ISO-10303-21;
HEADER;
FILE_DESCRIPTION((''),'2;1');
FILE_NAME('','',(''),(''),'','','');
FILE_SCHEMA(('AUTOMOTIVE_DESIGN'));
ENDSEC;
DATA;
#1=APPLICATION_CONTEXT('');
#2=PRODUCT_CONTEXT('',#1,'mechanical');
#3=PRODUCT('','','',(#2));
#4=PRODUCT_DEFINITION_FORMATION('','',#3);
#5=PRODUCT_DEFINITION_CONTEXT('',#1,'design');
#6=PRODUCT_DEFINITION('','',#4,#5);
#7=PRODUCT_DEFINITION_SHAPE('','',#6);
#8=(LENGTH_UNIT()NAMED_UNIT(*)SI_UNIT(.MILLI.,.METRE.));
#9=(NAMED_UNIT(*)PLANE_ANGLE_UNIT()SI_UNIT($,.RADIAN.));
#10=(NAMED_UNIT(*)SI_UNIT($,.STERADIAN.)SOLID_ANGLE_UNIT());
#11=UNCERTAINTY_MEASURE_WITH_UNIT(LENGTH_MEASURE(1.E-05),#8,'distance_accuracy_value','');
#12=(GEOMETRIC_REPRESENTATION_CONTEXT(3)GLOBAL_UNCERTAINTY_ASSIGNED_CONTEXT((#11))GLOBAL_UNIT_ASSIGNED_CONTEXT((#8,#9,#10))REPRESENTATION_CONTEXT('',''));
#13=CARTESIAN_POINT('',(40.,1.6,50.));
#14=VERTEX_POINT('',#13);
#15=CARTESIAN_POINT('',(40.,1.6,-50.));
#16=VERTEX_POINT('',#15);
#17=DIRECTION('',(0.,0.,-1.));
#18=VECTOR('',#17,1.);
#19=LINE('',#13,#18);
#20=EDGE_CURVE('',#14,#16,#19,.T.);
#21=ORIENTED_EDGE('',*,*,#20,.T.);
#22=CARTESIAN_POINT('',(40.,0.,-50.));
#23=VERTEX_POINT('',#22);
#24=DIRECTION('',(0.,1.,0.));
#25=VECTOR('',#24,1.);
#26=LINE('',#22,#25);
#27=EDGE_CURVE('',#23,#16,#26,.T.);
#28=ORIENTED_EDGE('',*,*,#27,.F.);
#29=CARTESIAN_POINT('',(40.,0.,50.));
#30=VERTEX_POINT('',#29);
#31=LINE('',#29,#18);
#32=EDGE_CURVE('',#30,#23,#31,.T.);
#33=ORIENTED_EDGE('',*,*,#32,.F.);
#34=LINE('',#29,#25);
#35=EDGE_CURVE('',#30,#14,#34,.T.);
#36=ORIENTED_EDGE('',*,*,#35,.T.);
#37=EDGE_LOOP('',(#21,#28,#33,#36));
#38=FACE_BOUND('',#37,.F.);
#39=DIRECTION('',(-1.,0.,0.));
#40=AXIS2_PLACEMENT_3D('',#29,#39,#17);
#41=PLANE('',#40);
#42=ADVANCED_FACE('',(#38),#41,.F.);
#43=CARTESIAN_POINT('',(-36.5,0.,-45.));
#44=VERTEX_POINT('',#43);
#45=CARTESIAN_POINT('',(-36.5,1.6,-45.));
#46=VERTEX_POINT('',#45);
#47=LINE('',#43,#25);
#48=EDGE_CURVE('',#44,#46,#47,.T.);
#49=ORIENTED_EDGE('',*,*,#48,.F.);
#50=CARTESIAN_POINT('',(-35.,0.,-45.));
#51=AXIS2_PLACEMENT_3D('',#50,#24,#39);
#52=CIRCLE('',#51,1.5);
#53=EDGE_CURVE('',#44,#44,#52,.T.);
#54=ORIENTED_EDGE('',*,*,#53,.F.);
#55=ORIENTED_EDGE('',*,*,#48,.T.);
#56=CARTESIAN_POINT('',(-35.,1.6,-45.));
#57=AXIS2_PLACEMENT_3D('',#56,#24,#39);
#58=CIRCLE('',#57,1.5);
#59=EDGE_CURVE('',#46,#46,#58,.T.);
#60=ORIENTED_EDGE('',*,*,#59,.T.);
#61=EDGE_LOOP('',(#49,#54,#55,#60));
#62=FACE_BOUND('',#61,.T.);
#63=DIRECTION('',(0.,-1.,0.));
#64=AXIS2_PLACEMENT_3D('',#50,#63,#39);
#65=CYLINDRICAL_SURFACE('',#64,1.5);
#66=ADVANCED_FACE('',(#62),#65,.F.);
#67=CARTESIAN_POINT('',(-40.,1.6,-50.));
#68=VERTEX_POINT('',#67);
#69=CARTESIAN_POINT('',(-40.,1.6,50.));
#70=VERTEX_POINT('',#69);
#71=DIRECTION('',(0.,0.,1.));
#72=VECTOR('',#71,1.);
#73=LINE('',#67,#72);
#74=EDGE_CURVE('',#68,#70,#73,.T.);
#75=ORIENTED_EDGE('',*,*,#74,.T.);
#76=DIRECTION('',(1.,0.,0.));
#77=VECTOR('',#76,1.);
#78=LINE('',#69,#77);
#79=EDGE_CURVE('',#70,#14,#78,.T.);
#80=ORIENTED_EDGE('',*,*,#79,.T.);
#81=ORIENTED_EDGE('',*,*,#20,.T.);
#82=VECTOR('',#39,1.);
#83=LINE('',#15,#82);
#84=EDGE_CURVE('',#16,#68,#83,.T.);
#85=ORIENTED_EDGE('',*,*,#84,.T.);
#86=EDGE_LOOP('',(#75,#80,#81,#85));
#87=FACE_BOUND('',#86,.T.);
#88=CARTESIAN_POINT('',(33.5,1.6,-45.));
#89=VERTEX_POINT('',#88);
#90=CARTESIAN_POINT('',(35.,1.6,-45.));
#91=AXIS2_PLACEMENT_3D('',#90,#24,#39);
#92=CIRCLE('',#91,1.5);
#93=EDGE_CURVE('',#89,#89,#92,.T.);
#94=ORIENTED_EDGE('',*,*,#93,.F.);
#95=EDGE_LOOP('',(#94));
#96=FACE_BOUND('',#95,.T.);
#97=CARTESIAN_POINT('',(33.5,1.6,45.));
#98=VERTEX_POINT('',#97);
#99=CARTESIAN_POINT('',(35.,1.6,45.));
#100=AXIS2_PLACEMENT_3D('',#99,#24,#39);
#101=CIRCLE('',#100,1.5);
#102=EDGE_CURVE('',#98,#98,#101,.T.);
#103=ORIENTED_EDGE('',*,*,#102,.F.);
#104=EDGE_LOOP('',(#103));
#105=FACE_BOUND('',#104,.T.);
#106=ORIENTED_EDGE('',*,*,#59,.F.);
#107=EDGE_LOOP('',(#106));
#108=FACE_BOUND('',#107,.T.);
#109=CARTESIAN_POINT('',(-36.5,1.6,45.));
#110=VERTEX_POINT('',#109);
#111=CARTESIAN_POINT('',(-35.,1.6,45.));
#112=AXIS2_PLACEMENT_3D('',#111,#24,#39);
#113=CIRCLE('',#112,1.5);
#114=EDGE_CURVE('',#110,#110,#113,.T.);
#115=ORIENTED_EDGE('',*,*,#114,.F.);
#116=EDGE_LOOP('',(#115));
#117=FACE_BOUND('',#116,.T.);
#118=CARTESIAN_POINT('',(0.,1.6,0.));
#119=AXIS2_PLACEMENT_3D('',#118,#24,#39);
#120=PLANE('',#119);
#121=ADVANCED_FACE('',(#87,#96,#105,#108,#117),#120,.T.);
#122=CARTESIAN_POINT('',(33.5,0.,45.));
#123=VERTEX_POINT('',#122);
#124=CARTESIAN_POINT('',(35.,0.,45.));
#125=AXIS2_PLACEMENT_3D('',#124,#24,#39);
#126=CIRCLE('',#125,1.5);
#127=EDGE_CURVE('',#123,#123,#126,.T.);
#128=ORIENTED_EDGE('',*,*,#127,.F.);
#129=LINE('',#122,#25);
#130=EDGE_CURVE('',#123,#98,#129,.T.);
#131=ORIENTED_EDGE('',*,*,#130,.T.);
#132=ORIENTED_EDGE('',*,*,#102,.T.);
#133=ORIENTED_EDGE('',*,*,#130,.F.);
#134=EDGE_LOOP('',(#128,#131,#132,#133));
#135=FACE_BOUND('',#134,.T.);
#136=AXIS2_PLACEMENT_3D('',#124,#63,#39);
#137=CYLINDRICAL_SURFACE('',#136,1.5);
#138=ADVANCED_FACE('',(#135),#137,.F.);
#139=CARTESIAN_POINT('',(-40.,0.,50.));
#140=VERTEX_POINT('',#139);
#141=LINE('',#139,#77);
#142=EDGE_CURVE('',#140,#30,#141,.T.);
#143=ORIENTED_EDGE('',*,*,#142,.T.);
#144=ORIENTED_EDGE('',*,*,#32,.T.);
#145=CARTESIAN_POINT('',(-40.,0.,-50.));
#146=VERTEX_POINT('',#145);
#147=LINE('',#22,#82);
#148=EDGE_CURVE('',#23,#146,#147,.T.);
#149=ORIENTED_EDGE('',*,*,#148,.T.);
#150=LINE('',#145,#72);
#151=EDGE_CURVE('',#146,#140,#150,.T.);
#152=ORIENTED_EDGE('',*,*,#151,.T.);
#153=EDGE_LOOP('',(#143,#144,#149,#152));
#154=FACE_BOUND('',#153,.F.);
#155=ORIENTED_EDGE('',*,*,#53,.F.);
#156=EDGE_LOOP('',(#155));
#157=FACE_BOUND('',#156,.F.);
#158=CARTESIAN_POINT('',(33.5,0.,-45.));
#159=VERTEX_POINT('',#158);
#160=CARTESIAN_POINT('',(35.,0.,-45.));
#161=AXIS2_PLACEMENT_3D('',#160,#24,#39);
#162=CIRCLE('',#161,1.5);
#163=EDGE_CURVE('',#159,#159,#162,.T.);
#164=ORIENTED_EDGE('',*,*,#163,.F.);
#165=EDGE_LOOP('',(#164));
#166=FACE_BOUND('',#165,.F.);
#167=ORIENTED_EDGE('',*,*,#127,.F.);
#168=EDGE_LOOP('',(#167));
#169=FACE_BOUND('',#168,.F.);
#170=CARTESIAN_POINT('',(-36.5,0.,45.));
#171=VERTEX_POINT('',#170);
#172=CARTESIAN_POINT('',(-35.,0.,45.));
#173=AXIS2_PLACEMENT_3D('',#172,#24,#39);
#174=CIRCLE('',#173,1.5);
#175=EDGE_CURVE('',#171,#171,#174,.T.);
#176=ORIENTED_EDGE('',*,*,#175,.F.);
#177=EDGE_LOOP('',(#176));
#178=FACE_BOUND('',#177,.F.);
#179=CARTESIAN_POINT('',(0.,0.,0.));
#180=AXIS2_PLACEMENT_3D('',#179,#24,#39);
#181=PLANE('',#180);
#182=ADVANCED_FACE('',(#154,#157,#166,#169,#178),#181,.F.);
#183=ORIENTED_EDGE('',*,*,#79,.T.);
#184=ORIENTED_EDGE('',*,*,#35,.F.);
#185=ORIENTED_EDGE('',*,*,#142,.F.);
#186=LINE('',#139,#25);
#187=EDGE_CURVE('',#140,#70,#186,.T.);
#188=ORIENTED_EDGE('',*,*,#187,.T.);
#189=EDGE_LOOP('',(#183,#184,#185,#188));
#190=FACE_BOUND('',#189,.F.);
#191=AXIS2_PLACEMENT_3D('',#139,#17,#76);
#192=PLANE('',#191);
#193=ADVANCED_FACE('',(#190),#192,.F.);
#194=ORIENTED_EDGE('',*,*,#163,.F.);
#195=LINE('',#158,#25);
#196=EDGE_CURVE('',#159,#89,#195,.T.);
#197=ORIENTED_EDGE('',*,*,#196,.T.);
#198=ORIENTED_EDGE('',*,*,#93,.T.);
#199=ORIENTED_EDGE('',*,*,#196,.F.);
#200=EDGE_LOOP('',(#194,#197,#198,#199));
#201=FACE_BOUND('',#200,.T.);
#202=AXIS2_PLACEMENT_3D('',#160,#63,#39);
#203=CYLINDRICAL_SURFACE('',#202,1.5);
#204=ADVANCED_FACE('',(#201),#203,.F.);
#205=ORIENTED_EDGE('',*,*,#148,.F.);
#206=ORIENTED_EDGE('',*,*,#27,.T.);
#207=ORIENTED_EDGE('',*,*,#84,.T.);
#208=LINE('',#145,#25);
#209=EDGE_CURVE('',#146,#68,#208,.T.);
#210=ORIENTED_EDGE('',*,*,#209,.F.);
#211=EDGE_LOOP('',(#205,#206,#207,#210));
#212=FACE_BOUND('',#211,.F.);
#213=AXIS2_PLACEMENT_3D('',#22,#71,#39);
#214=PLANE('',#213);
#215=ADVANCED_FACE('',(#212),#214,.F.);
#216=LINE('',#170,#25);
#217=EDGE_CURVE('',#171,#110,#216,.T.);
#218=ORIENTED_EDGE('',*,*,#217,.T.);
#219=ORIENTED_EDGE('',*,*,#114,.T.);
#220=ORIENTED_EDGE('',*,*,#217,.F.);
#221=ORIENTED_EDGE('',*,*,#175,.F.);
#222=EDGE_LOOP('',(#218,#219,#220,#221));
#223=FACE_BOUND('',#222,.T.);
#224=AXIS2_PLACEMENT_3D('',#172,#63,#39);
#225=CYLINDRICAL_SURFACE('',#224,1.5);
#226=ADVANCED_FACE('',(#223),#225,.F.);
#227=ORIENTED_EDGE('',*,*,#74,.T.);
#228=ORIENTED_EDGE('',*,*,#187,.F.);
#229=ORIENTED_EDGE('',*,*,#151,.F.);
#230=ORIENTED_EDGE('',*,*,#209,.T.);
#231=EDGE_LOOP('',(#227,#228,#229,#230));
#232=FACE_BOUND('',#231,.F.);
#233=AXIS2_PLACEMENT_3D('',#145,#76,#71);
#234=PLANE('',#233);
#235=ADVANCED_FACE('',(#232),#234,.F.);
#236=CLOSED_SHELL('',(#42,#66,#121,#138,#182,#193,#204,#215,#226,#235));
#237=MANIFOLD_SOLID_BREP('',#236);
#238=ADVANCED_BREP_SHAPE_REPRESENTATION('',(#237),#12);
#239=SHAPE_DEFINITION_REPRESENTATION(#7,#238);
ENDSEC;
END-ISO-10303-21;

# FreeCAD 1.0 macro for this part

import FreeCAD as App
import Part
import Sketcher
Q = App.Units.Quantity


def add_polygon(sketch, points):
    """Adds a closed chain of lines whose ends are joined by coincident constraints."""
    first, n = sketch.GeometryCount, len(points)
    for a, b in zip(points, points[1:] + points[:1]):
        sketch.addGeometry(Part.LineSegment(App.Vector(*a, 0), App.Vector(*b, 0)), False)
    for i in range(n):
        sketch.addConstraint(Sketcher.Constraint("Coincident", first + i, 2, first + (i + 1) % n, 1))

doc = App.newDocument("Part")
params = doc.addObject("Spreadsheet::Sheet", "Params")
for row, (alias, value) in enumerate([
    ("sketch1_height", "3.937 in"),
    ("pad1_length", "0.0629921 in"),
], start=1):
    params.set(f"A{row}", alias)
    params.set(f"B{row}", "=" + value)
    params.setAlias(f"B{row}", alias)

body = doc.addObject("PartDesign::Body", "Body")

sketch1 = body.newObject("Sketcher::SketchObject", "Sketch")
sketch1.AttachmentSupport = (doc.getObject("XZ_Plane"), [""])
sketch1.MapMode = "FlatFace"
add_polygon(sketch1, [(-40, -50), (-40, 50), (40, 50), (40, -50)])
sketch1.addGeometry(Part.Circle(App.Vector(35, -45, 0), App.Vector(0, 0, 1), 1.5), False)
sketch1.addGeometry(Part.Circle(App.Vector(-35, -45, 0), App.Vector(0, 0, 1), 1.5), False)
sketch1.addGeometry(Part.Circle(App.Vector(35, 45, 0), App.Vector(0, 0, 1), 1.5), False)
sketch1.addGeometry(Part.Circle(App.Vector(-35, 45, 0), App.Vector(0, 0, 1), 1.5), False)
sketch1.addConstraint([
    Sketcher.Constraint("Vertical", 0),
    Sketcher.Constraint("Horizontal", 1),
    Sketcher.Constraint("Vertical", 2),
    Sketcher.Constraint("Horizontal", 3),
    Sketcher.Constraint("Equal", 4, 5),
    Sketcher.Constraint("Equal", 5, 6),
    Sketcher.Constraint("Equal", 6, 7),
    Sketcher.Constraint("Symmetric", 5, 3, 6, 3, -1, 1),
    Sketcher.Constraint("Symmetric", 4, 3, 7, 3, -1, 1),
    Sketcher.Constraint("Symmetric", 0, 2, 2, 2, -1, 1),
    Sketcher.Constraint("Symmetric", 4, 3, 5, 3, -2),
    Sketcher.Constraint("Diameter", 4, Q("0.1181 in")),
    Sketcher.Constraint("DistanceY", 0, 1, 0, 2, Q("3.937 in")),
    Sketcher.Constraint("DistanceX", 1, 1, 1, 2, Q("3.1496 in")),
    Sketcher.Constraint("DistanceX", 0, 2, 7, 3, 5.0),
    Sketcher.Constraint("DistanceY", 7, 3, 0, 2, 5.0),
])
sketch1.setExpression("Constraints[16]", "Params.sketch1_height")
pad1 = body.newObject("PartDesign::Pad", "Pad")
pad1.Profile = sketch1
pad1.setExpression("Length", "Params.pad1_length")
pad1.Reversed = True

doc.recompute()
